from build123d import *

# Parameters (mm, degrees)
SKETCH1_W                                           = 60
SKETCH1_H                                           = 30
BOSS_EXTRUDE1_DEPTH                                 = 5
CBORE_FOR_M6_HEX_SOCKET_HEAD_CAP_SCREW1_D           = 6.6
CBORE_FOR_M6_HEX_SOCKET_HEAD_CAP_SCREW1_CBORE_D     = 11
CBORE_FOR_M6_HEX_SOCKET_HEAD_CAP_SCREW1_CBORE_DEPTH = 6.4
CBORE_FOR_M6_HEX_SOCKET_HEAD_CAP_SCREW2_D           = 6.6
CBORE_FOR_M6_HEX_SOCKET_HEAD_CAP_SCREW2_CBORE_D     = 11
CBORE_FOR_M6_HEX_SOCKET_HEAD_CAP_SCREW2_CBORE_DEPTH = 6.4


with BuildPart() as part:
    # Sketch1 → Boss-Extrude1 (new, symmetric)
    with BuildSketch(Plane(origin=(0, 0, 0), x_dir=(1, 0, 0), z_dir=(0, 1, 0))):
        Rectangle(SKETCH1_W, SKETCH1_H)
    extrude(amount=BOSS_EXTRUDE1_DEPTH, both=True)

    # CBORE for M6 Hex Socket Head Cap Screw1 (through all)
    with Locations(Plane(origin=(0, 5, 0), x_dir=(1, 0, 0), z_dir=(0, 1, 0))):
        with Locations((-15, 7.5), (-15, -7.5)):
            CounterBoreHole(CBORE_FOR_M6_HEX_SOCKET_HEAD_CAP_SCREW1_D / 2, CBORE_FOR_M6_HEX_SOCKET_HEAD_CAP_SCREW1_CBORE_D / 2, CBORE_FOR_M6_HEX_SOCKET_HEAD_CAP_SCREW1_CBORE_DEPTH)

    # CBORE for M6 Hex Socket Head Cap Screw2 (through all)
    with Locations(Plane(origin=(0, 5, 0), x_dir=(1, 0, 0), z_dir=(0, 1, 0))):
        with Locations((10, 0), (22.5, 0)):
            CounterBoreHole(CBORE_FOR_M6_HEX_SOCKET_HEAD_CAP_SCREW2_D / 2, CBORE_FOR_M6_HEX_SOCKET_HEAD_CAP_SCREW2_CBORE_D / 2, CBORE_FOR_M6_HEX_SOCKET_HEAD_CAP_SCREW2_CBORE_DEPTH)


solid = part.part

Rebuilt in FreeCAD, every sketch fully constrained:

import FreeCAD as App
import Part
import Sketcher
Q = App.Units.Quantity


def add_polygon(sketch, points):
    """Adds a closed chain of lines whose ends are joined by coincident constraints."""
    first, n = sketch.GeometryCount, len(points)
    for a, b in zip(points, points[1:] + points[:1]):
        sketch.addGeometry(Part.LineSegment(App.Vector(*a, 0), App.Vector(*b, 0)), False)
    for i in range(n):
        sketch.addConstraint(Sketcher.Constraint("Coincident", first + i, 2, first + (i + 1) % n, 1))

doc = App.newDocument("Part")
body = doc.addObject("PartDesign::Body", "Body")

# Sketch on XZ plane
sketch1 = doc.addObject("Sketcher::SketchObject", "Sketch")
body.addObject(sketch1)
sketch1.AttachmentSupport = (doc.XZ_Plane, [""])
sketch1.MapMode = "FlatFace"
add_polygon(sketch1, [(-30, -15), (-30, 15), (30, 15), (30, -15)])  # lines 0-3
sketch1.addConstraint(Sketcher.Constraint("Vertical", 0))
sketch1.addConstraint(Sketcher.Constraint("Horizontal", 1))
sketch1.addConstraint(Sketcher.Constraint("Vertical", 2))
sketch1.addConstraint(Sketcher.Constraint("Horizontal", 3))
sketch1.addConstraint(Sketcher.Constraint("Symmetric", 0, 2, 2, 2, -1, 1))
sketch1.addConstraint(Sketcher.Constraint("DistanceX", 1, 1, 1, 2, Q("60 mm")))
sketch1.addConstraint(Sketcher.Constraint("DistanceY", 0, 1, 0, 2, Q("30 mm")))
pad1 = doc.addObject("PartDesign::Pad", "Pad")
body.addObject(pad1)
pad1.Profile = sketch1
pad1.Length = 10
pad1.Midplane = True

# Sketch on XZ plane
sketch2 = doc.addObject("Sketcher::SketchObject", "Sketch001")
body.addObject(sketch2)
sketch2.AttachmentSupport = (doc.XZ_Plane, [""])
sketch2.MapMode = "FlatFace"
sketch2.AttachmentOffset = App.Placement(App.Vector(0, 0, -5), App.Rotation())
sketch2.addGeometry(Part.Circle(App.Vector(-15, -7.5, 0), App.Vector(0, 0, 1), 3.3), False)
sketch2.addGeometry(Part.Circle(App.Vector(-15, 7.5, 0), App.Vector(0, 0, 1), 3.3), False)
sketch2.addConstraint(Sketcher.Constraint("Equal", 0, 1))
sketch2.addConstraint(Sketcher.Constraint("Symmetric", 0, 3, 1, 3, -1))
sketch2.addConstraint(Sketcher.Constraint("Diameter", 0, Q("6.6 mm")))
sketch2.addConstraint(Sketcher.Constraint("DistanceX", 0, 3, -1, 1, Q("15 mm")))
sketch2.addConstraint(Sketcher.Constraint("DistanceY", 0, 3, 1, 3, Q("15 mm")))
doc.recompute()
hole = doc.addObject("PartDesign::Hole", "Hole")
body.addObject(hole)
hole.Profile = sketch2
hole.ThreadType = "None"
hole.Diameter = 6.6
hole.DepthType = "ThroughAll"
hole.HoleCutType = "Counterbore"
hole.HoleCutDiameter = 11
hole.HoleCutDepth = 6.4
hole.Reversed = True

# Sketch on XZ plane
sketch3 = doc.addObject("Sketcher::SketchObject", "Sketch002")
body.addObject(sketch3)
sketch3.AttachmentSupport = (doc.XZ_Plane, [""])
sketch3.MapMode = "FlatFace"
sketch3.AttachmentOffset = App.Placement(App.Vector(0, 0, -5), App.Rotation())
sketch3.addGeometry(Part.Circle(App.Vector(10, 0, 0), App.Vector(0, 0, 1), 3.3), False)
sketch3.addGeometry(Part.Circle(App.Vector(22.5, 0, 0), App.Vector(0, 0, 1), 3.3), False)
sketch3.addConstraint(Sketcher.Constraint("Equal", 0, 1))
sketch3.addConstraint(Sketcher.Constraint("PointOnObject", 0, 3, -1))
sketch3.addConstraint(Sketcher.Constraint("PointOnObject", 1, 3, -1))
sketch3.addConstraint(Sketcher.Constraint("Diameter", 0, Q("6.6 mm")))
sketch3.addConstraint(Sketcher.Constraint("DistanceX", -1, 1, 0, 3, Q("10 mm")))
sketch3.addConstraint(Sketcher.Constraint("DistanceX", -1, 1, 1, 3, Q("22.5 mm")))
doc.recompute()
hole2 = doc.addObject("PartDesign::Hole", "Hole001")
body.addObject(hole2)
hole2.Profile = sketch3
hole2.ThreadType = "None"
hole2.Diameter = 6.6
hole2.DepthType = "ThroughAll"
hole2.HoleCutType = "Counterbore"
hole2.HoleCutDiameter = 11
hole2.HoleCutDepth = 6.4
hole2.Reversed = True

doc.recompute()
